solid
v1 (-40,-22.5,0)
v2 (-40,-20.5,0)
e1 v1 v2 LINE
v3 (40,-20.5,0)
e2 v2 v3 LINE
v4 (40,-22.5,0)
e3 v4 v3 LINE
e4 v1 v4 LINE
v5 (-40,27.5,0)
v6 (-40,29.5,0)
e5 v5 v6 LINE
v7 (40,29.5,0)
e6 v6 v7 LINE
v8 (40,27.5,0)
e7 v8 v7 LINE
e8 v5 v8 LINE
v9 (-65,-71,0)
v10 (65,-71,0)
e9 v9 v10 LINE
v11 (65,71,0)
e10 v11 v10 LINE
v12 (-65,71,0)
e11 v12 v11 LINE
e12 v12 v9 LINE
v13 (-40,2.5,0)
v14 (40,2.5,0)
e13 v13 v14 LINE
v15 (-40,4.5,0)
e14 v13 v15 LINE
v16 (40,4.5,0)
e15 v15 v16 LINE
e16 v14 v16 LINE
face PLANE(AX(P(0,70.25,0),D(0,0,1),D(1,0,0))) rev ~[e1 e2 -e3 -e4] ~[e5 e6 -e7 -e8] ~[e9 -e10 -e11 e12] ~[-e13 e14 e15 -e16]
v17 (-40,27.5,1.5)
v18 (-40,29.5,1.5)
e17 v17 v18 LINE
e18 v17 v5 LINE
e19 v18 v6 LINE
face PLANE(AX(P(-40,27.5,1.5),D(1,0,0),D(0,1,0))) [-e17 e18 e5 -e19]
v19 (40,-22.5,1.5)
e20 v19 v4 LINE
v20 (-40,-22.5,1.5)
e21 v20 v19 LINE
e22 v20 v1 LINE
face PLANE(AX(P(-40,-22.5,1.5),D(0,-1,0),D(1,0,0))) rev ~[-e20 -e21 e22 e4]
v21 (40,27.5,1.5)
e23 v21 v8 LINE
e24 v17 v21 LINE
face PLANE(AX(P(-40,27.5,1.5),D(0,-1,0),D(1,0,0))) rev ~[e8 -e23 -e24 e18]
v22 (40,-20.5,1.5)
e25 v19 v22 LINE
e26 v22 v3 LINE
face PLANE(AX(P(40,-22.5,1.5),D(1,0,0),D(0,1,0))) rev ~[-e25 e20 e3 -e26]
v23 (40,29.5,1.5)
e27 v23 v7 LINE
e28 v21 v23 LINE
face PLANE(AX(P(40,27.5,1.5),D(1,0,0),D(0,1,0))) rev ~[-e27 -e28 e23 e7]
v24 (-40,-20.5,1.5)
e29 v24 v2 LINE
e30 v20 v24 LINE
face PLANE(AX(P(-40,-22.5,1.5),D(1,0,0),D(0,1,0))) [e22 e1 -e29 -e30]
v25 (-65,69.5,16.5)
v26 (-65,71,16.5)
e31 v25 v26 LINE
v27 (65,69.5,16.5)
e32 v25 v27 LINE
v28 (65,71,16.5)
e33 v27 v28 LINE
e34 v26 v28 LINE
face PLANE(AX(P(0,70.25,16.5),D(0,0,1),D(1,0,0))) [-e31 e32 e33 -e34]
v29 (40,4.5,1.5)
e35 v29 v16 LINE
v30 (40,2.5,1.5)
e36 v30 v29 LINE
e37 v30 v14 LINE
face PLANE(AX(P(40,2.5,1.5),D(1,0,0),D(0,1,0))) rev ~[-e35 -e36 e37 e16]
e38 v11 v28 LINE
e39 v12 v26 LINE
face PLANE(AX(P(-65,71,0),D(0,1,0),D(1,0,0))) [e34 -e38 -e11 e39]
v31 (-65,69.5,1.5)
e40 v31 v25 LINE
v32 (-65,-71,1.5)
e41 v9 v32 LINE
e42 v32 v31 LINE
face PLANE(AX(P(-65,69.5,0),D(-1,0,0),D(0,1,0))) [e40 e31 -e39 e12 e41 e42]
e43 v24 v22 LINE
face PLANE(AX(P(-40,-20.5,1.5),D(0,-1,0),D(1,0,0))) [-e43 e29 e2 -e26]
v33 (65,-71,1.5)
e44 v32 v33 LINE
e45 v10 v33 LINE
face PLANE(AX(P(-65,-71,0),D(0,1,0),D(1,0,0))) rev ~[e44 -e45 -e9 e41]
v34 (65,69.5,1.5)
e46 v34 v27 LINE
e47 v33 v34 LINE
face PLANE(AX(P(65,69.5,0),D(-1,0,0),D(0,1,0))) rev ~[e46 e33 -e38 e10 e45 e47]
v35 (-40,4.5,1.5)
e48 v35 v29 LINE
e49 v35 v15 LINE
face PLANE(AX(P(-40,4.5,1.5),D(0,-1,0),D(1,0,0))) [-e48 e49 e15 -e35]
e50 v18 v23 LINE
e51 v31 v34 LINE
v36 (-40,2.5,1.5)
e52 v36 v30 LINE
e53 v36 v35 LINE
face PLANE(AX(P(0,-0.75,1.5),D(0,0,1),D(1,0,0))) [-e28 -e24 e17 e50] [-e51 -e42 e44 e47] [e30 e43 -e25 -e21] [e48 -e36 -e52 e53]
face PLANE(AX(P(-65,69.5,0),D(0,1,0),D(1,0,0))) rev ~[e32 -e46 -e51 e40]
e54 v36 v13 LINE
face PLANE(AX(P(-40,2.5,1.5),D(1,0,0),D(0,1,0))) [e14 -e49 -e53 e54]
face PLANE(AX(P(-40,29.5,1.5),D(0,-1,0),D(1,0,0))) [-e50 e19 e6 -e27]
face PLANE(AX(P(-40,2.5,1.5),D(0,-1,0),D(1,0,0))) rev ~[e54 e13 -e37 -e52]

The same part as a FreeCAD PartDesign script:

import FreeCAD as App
import Part
import Sketcher
Q = App.Units.Quantity

doc = App.newDocument("Part")
body = doc.addObject("PartDesign::Body", "Body")

sketch1 = doc.addObject("Sketcher::SketchObject", "Sketch")
body.addObject(sketch1)
sketch1.AttachmentSupport = (doc.XY_Plane, [""])
sketch1.MapMode = "FlatFace"
sketch1.addGeometry([
    Part.LineSegment(App.Vector(-65, 70, 0), App.Vector(-65, -71, 0)),
    Part.LineSegment(App.Vector(-65, -71, 0), App.Vector(65, -71, 0)),
    Part.LineSegment(App.Vector(65, -71, 0), App.Vector(65, 70, 0)),
    Part.LineSegment(App.Vector(65, 70, 0), App.Vector(-65, 70, 0)),
], False)
sketch1.addConstraint([
    Sketcher.Constraint("Coincident", 0, 2, 1, 1),
    Sketcher.Constraint("Coincident", 1, 2, 2, 1),
    Sketcher.Constraint("Coincident", 2, 2, 3, 1),
    Sketcher.Constraint("Coincident", 3, 2, 0, 1),
    Sketcher.Constraint("Vertical", 0),
    Sketcher.Constraint("Horizontal", 1),
    Sketcher.Constraint("Vertical", 2),
    Sketcher.Constraint("Horizontal", 3),
    Sketcher.Constraint("DistanceX", 1, 1, 1, 2, Q("130 mm")),
    Sketcher.Constraint("DistanceY", 0, 2, 0, 1, Q("140.5 mm")),
    Sketcher.Constraint("DistanceX", 0, 2, -1, 1, Q("65 mm")),
    Sketcher.Constraint("DistanceY", 0, 2, -1, 1, Q("71 mm")),
])
pad1 = doc.addObject("PartDesign::Pad", "Pad")
body.addObject(pad1)
pad1.Profile = sketch1
pad1.Length = 1.5

sketch2 = doc.addObject("Sketcher::SketchObject", "Sketch001")
body.addObject(sketch2)
sketch2.AttachmentSupport = (doc.XY_Plane, [""])
sketch2.MapMode = "FlatFace"
sketch2.addGeometry([
    Part.LineSegment(App.Vector(-65, 71, 0), App.Vector(-65, 69.5, 0)),
    Part.LineSegment(App.Vector(-65, 69.5, 0), App.Vector(65, 69.5, 0)),
    Part.LineSegment(App.Vector(65, 69.5, 0), App.Vector(65, 71, 0)),
    Part.LineSegment(App.Vector(65, 71, 0), App.Vector(-65, 71, 0)),
], False)
sketch2.addConstraint([
    Sketcher.Constraint("Coincident", 0, 2, 1, 1),
    Sketcher.Constraint("Coincident", 1, 2, 2, 1),
    Sketcher.Constraint("Coincident", 2, 2, 3, 1),
    Sketcher.Constraint("Coincident", 3, 2, 0, 1),
    Sketcher.Constraint("Vertical", 0),
    Sketcher.Constraint("Horizontal", 1),
    Sketcher.Constraint("Vertical", 2),
    Sketcher.Constraint("Horizontal", 3),
    Sketcher.Constraint("DistanceX", 1, 1, 1, 2, Q("130 mm")),
    Sketcher.Constraint("DistanceY", 0, 2, 0, 1, Q("1.5 mm")),
    Sketcher.Constraint("DistanceX", 0, 2, -1, 1, Q("65 mm")),
    Sketcher.Constraint("DistanceY", -1, 1, 2, 2, Q("71 mm")),
])
pad2 = doc.addObject("PartDesign::Pad", "Pad001")
body.addObject(pad2)
pad2.Profile = sketch2
pad2.Length = 16.5

sketch3 = doc.addObject("Sketcher::SketchObject", "Sketch002")
body.addObject(sketch3)
sketch3.AttachmentSupport = (doc.XY_Plane, [""])
sketch3.MapMode = "FlatFace"
sketch3.AttachmentOffset = App.Placement(App.Vector(0, 0, 1.5), App.Rotation())
sketch3.addGeometry([
    Part.LineSegment(App.Vector(-40, 29.5, 0), App.Vector(-40, 27.5, 0)),
    Part.LineSegment(App.Vector(-40, 27.5, 0), App.Vector(40, 27.5, 0)),
    Part.LineSegment(App.Vector(40, 27.5, 0), App.Vector(40, 29.5, 0)),
    Part.LineSegment(App.Vector(40, 29.5, 0), App.Vector(-40, 29.5, 0)),
    Part.LineSegment(App.Vector(-40, 4.5, 0), App.Vector(-40, 2.5, 0)),
    Part.LineSegment(App.Vector(-40, 2.5, 0), App.Vector(40, 2.5, 0)),
    Part.LineSegment(App.Vector(40, 2.5, 0), App.Vector(40, 4.5, 0)),
    Part.LineSegment(App.Vector(40, 4.5, 0), App.Vector(-40, 4.5, 0)),
    Part.LineSegment(App.Vector(-40, -20.5, 0), App.Vector(-40, -22.5, 0)),
    Part.LineSegment(App.Vector(-40, -22.5, 0), App.Vector(40, -22.5, 0)),
    Part.LineSegment(App.Vector(40, -22.5, 0), App.Vector(40, -20.5, 0)),
    Part.LineSegment(App.Vector(40, -20.5, 0), App.Vector(-40, -20.5, 0)),
], False)
sketch3.addConstraint([
    Sketcher.Constraint("Coincident", 0, 2, 1, 1),
    Sketcher.Constraint("Coincident", 1, 2, 2, 1),
    Sketcher.Constraint("Coincident", 2, 2, 3, 1),
    Sketcher.Constraint("Coincident", 3, 2, 0, 1),
    Sketcher.Constraint("Coincident", 4, 2, 5, 1),
    Sketcher.Constraint("Coincident", 5, 2, 6, 1),
    Sketcher.Constraint("Coincident", 6, 2, 7, 1),
    Sketcher.Constraint("Coincident", 7, 2, 4, 1),
    Sketcher.Constraint("Coincident", 8, 2, 9, 1),
    Sketcher.Constraint("Coincident", 9, 2, 10, 1),
    Sketcher.Constraint("Coincident", 10, 2, 11, 1),
    Sketcher.Constraint("Coincident", 11, 2, 8, 1),
    Sketcher.Constraint("Vertical", 0),
    Sketcher.Constraint("Horizontal", 1),
    Sketcher.Constraint("Vertical", 2),
    Sketcher.Constraint("Horizontal", 3),
    Sketcher.Constraint("Vertical", 4),
    Sketcher.Constraint("Horizontal", 5),
    Sketcher.Constraint("Vertical", 6),
    Sketcher.Constraint("Horizontal", 7),
    Sketcher.Constraint("Vertical", 8),
    Sketcher.Constraint("Horizontal", 9),
    Sketcher.Constraint("Vertical", 10),
    Sketcher.Constraint("Horizontal", 11),
    Sketcher.Constraint("Vertical", 3, 2, 4, 2),
    Sketcher.Constraint("Vertical", 2, 2, 5, 2),
    Sketcher.Constraint("Vertical", 7, 2, 8, 2),
    Sketcher.Constraint("Vertical", 6, 2, 9, 2),
    Sketcher.Constraint("Equal", 2, 4),
    Sketcher.Constraint("Equal", 6, 8),
    Sketcher.Constraint("DistanceX", 1, 1, 1, 2, Q("80 mm")),
    Sketcher.Constraint("DistanceY", 0, 2, 0, 1, Q("2 mm")),
    Sketcher.Constraint("DistanceX", 0, 2, -1, 1, Q("40 mm")),
    Sketcher.Constraint("DistanceY", 4, 2, 0, 2, Q("25 mm")),
    Sketcher.Constraint("DistanceY", 8, 2, 4, 2, Q("25 mm")),
    Sketcher.Constraint("DistanceY", -1, 1, 0, 2, Q("27.5 mm")),
])
pocket1 = doc.addObject("PartDesign::Pocket", "Pocket")
body.addObject(pocket1)
pocket1.Profile = sketch3
pocket1.Type = "ThroughAll"

doc.recompute()
